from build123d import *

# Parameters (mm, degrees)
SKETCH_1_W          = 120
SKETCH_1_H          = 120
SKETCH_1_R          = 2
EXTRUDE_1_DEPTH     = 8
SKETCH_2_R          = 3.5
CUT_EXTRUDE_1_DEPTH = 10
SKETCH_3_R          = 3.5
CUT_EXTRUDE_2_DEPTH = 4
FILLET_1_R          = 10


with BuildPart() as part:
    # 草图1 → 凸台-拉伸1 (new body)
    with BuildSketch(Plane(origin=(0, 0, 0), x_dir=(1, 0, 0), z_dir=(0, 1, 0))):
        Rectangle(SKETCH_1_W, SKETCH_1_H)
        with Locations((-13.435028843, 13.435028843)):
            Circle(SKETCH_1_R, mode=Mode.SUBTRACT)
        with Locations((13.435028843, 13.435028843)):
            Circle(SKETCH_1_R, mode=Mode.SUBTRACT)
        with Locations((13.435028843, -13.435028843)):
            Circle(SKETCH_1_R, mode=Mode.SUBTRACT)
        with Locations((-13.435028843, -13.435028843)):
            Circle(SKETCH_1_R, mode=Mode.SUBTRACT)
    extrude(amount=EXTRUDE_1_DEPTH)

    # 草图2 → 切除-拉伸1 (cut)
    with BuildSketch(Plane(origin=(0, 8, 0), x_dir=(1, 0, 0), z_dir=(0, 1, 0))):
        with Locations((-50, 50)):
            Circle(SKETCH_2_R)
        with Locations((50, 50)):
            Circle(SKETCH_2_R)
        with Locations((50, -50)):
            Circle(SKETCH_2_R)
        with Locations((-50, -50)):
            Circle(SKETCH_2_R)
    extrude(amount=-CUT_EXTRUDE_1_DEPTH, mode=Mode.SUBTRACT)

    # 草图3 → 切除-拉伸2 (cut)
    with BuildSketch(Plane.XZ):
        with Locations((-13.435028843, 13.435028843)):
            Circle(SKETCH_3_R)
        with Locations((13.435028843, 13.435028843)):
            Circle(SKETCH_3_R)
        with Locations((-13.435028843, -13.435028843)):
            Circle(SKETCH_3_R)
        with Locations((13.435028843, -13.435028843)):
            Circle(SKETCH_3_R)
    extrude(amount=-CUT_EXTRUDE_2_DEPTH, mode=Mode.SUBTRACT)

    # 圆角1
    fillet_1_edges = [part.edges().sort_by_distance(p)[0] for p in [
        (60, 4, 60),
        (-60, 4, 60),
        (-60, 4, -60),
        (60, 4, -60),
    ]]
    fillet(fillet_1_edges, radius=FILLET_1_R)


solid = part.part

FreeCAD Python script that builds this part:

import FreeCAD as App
import Part
import Sketcher


def edges_at(feature, points):
    """Names of the edges that pass closest to the given points."""
    edges = feature.Shape.Edges
    near = lambda p: min(range(len(edges)), key=lambda i: edges[i].distToShape(Part.Vertex(*p))[0])
    return sorted({f"Edge{near(p) + 1}" for p in points})

doc = App.newDocument("Part")
body = doc.addObject("PartDesign::Body", "Body")

sketch1 = body.newObject("Sketcher::SketchObject", "Sketch")
sketch1.AttachmentSupport = (doc.getObject("XZ_Plane"), [""])
sketch1.MapMode = "FlatFace"
sketch1.addGeometry([
    Part.LineSegment(App.Vector(-60, -60, 0), App.Vector(-60, 60, 0)),
    Part.LineSegment(App.Vector(-60, 60, 0), App.Vector(60, 60, 0)),
    Part.LineSegment(App.Vector(60, 60, 0), App.Vector(60, -60, 0)),
    Part.LineSegment(App.Vector(60, -60, 0), App.Vector(-60, -60, 0)),
    Part.Circle(App.Vector(-13.4, 13.4, 0), App.Vector(0, 0, 1), 2),
    Part.Circle(App.Vector(13.4, 13.4, 0), App.Vector(0, 0, 1), 2),
    Part.Circle(App.Vector(-13.4, -13.4, 0), App.Vector(0, 0, 1), 2),
    Part.Circle(App.Vector(13.4, -13.4, 0), App.Vector(0, 0, 1), 2),
], False)
sketch1.addConstraint([
    Sketcher.Constraint("Coincident", 0, 2, 1, 1),
    Sketcher.Constraint("Coincident", 1, 2, 2, 1),
    Sketcher.Constraint("Coincident", 2, 2, 3, 1),
    Sketcher.Constraint("Coincident", 3, 2, 0, 1),
    Sketcher.Constraint("Vertical", 0),
    Sketcher.Constraint("Horizontal", 1),
    Sketcher.Constraint("Vertical", 2),
    Sketcher.Constraint("Horizontal", 3),
    Sketcher.Constraint("Equal", 4, 5),
    Sketcher.Constraint("Equal", 5, 6),
    Sketcher.Constraint("Equal", 6, 7),
    Sketcher.Constraint("Symmetric", 5, 3, 6, 3, -1, 1),
    Sketcher.Constraint("Symmetric", 4, 3, 7, 3, -1, 1),
    Sketcher.Constraint("Symmetric", 0, 2, 2, 2, -1, 1),
    Sketcher.Constraint("Symmetric", 4, 3, 5, 3, -2),
    Sketcher.Constraint("Equal", 3, 0),
    Sketcher.Constraint("Diameter", 4, 4.0),
    Sketcher.Constraint("DistanceX", 1, 1, 1, 2, 120.0),
    Sketcher.Constraint("DistanceX", 4, 3, -1, 1, 13.435029),
    Sketcher.Constraint("DistanceY", -1, 1, 4, 3, 13.435029),
])
pad1 = body.newObject("PartDesign::Pad", "Pad")
pad1.Profile = sketch1
pad1.Length = 8
pad1.Reversed = True

sketch2 = body.newObject("Sketcher::SketchObject", "Sketch001")
sketch2.AttachmentSupport = (doc.getObject("XZ_Plane"), [""])
sketch2.MapMode = "FlatFace"
sketch2.AttachmentOffset = App.Placement(App.Vector(0, 0, -8), App.Rotation())
sketch2.addGeometry([
    Part.Circle(App.Vector(-50, -50, 0), App.Vector(0, 0, 1), 3.5),
    Part.Circle(App.Vector(50, -50, 0), App.Vector(0, 0, 1), 3.5),
    Part.Circle(App.Vector(50, 50, 0), App.Vector(0, 0, 1), 3.5),
    Part.Circle(App.Vector(-50, 50, 0), App.Vector(0, 0, 1), 3.5),
], False)
sketch2.addConstraint([
    Sketcher.Constraint("Equal", 0, 1),
    Sketcher.Constraint("Equal", 1, 2),
    Sketcher.Constraint("Equal", 2, 3),
    Sketcher.Constraint("Symmetric", 0, 3, 2, 3, -1, 1),
    Sketcher.Constraint("Symmetric", 1, 3, 3, 3, -1, 1),
    Sketcher.Constraint("Symmetric", 0, 3, 1, 3, -2),
    Sketcher.Constraint("Diameter", 0, 7.0),
    Sketcher.Constraint("DistanceX", 0, 3, -1, 1, 50.0),
    Sketcher.Constraint("DistanceY", 0, 3, -1, 1, 50.0),
])
pocket1 = body.newObject("PartDesign::Pocket", "Pocket")
pocket1.Profile = sketch2
pocket1.Length = 10
pocket1.Reversed = True

sketch3 = body.newObject("Sketcher::SketchObject", "Sketch002")
sketch3.AttachmentSupport = (doc.getObject("XZ_Plane"), [""])
sketch3.MapMode = "FlatFace"
sketch3.addGeometry([
    Part.Circle(App.Vector(-13.4, 13.4, 0), App.Vector(0, 0, 1), 3.5),
    Part.Circle(App.Vector(13.4, 13.4, 0), App.Vector(0, 0, 1), 3.5),
    Part.Circle(App.Vector(-13.4, -13.4, 0), App.Vector(0, 0, 1), 3.5),
    Part.Circle(App.Vector(13.4, -13.4, 0), App.Vector(0, 0, 1), 3.5),
], False)
sketch3.addConstraint([
    Sketcher.Constraint("Equal", 0, 1),
    Sketcher.Constraint("Equal", 1, 2),
    Sketcher.Constraint("Equal", 2, 3),
    Sketcher.Constraint("Symmetric", 1, 3, 2, 3, -1, 1),
    Sketcher.Constraint("Symmetric", 0, 3, 3, 3, -1, 1),
    Sketcher.Constraint("Symmetric", 0, 3, 1, 3, -2),
    Sketcher.Constraint("Diameter", 0, 7.0),
    Sketcher.Constraint("DistanceX", 0, 3, -1, 1, 13.435029),
    Sketcher.Constraint("DistanceY", -1, 1, 0, 3, 13.435029),
])
pocket2 = body.newObject("PartDesign::Pocket", "Pocket001")
pocket2.Profile = sketch3
pocket2.Length = 4
doc.recompute()

fillet = body.newObject("PartDesign::Fillet", "Fillet")
fillet.Base = (pocket2, edges_at(pocket2, [
    (60, 4, 60),
    (-60, 4, 60),
    (-60, 4, -60),
    (60, 4, -60),
]))
fillet.Radius = 10

doc.recompute()
